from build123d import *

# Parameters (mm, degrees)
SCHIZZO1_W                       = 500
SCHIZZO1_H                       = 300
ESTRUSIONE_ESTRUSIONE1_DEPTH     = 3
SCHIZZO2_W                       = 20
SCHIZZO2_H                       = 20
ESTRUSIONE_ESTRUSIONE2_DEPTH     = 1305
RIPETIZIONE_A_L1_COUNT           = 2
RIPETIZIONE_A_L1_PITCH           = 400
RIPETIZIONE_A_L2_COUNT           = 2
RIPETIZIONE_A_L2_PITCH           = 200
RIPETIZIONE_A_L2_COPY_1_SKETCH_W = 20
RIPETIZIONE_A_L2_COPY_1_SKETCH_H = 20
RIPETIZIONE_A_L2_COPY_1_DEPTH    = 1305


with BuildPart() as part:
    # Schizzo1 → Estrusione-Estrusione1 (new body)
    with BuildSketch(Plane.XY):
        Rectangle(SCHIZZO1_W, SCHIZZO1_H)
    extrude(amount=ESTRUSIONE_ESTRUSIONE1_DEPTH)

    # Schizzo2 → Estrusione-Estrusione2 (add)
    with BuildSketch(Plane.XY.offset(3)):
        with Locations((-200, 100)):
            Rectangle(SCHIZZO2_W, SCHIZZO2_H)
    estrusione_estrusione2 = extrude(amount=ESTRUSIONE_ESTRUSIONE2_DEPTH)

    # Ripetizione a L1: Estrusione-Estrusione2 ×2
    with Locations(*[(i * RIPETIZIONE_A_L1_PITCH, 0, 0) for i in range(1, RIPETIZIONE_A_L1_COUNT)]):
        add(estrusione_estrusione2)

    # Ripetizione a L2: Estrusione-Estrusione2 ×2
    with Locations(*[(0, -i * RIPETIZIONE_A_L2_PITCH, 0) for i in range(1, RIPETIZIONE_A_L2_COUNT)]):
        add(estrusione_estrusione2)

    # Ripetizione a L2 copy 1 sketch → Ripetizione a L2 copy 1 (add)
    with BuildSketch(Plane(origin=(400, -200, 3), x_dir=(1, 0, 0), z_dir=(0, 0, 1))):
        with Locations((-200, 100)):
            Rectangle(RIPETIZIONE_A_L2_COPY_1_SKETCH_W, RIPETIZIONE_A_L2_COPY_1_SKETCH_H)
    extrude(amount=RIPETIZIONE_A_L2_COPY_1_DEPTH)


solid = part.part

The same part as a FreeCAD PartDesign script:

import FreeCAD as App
import Part
import Sketcher
from FreeCAD import Vector
Q = App.Units.Quantity

doc = App.newDocument("Part")
body = doc.addObject("PartDesign::Body", "Body")

sketch1 = body.newObject("Sketcher::SketchObject", "Sketch")
sketch1.AttachmentSupport = (doc.getObject("XY_Plane"), [""])
sketch1.MapMode = "FlatFace"
sketch1.addGeometry(Part.LineSegment(Vector(-250, 150, 0), Vector(-250, -150, 0)), False)
sketch1.addGeometry(Part.LineSegment(Vector(-250, -150, 0), Vector(250, -150, 0)), False)
sketch1.addGeometry(Part.LineSegment(Vector(250, -150, 0), Vector(250, 150, 0)), False)
sketch1.addGeometry(Part.LineSegment(Vector(250, 150, 0), Vector(-250, 150, 0)), False)
sketch1.addConstraint(Sketcher.Constraint("Coincident", 0, 2, 1, 1))
sketch1.addConstraint(Sketcher.Constraint("Coincident", 1, 2, 2, 1))
sketch1.addConstraint(Sketcher.Constraint("Coincident", 2, 2, 3, 1))
sketch1.addConstraint(Sketcher.Constraint("Coincident", 3, 2, 0, 1))
sketch1.addConstraint(Sketcher.Constraint("Vertical", 0))
sketch1.addConstraint(Sketcher.Constraint("Horizontal", 1))
sketch1.addConstraint(Sketcher.Constraint("Vertical", 2))
sketch1.addConstraint(Sketcher.Constraint("Horizontal", 3))
sketch1.addConstraint(Sketcher.Constraint("Symmetric", 0, 2, 2, 2, -1, 1))
sketch1.addConstraint(Sketcher.Constraint("DistanceX", 1, 1, 1, 2, Q("500 mm")))
sketch1.addConstraint(Sketcher.Constraint("DistanceY", 0, 2, 0, 1, Q("300 mm")))
pad1 = body.newObject("PartDesign::Pad", "Pad")
pad1.Profile = sketch1
pad1.Length = 3

sketch2 = body.newObject("Sketcher::SketchObject", "Sketch001")
sketch2.AttachmentSupport = (doc.getObject("XY_Plane"), [""])
sketch2.MapMode = "FlatFace"
sketch2.AttachmentOffset = App.Placement(Vector(0, 0, 3), App.Rotation())
sketch2.addGeometry(Part.LineSegment(Vector(-210, 110, 0), Vector(-210, 90, 0)), False)
sketch2.addGeometry(Part.LineSegment(Vector(-210, 90, 0), Vector(-190, 90, 0)), False)
sketch2.addGeometry(Part.LineSegment(Vector(-190, 90, 0), Vector(-190, 110, 0)), False)
sketch2.addGeometry(Part.LineSegment(Vector(-190, 110, 0), Vector(-210, 110, 0)), False)
sketch2.addConstraint(Sketcher.Constraint("Coincident", 0, 2, 1, 1))
sketch2.addConstraint(Sketcher.Constraint("Coincident", 1, 2, 2, 1))
sketch2.addConstraint(Sketcher.Constraint("Coincident", 2, 2, 3, 1))
sketch2.addConstraint(Sketcher.Constraint("Coincident", 3, 2, 0, 1))
sketch2.addConstraint(Sketcher.Constraint("Vertical", 0))
sketch2.addConstraint(Sketcher.Constraint("Horizontal", 1))
sketch2.addConstraint(Sketcher.Constraint("Vertical", 2))
sketch2.addConstraint(Sketcher.Constraint("Horizontal", 3))
sketch2.addConstraint(Sketcher.Constraint("Equal", 3, 0))
sketch2.addConstraint(Sketcher.Constraint("DistanceX", 1, 1, 1, 2, Q("20 mm")))
sketch2.addConstraint(Sketcher.Constraint("DistanceX", 0, 2, -1, 1, Q("210 mm")))
sketch2.addConstraint(Sketcher.Constraint("DistanceY", -1, 1, 0, 2, Q("90 mm")))
pad2 = body.newObject("PartDesign::Pad", "Pad001")
pad2.Profile = sketch2
pad2.Length = 1305
doc.recompute()

linearpattern = body.newObject("PartDesign::LinearPattern", "LinearPattern")
linearpattern.Originals = [pad2]
linearpattern.Direction = (doc.getObject("X_Axis"), [""])
linearpattern.Mode = "offset"
linearpattern.Offset = 400
linearpattern.Occurrences = 2
body.Tip = linearpattern
doc.recompute()

linearpattern2 = body.newObject("PartDesign::LinearPattern", "LinearPattern001")
linearpattern2.Originals = [pad2]
linearpattern2.Direction = (doc.getObject("Y_Axis"), [""])
linearpattern2.Mode = "offset"
linearpattern2.Offset = 200
linearpattern2.Occurrences = 2
linearpattern2.Reversed = True
body.Tip = linearpattern2

sketch3 = body.newObject("Sketcher::SketchObject", "Sketch002")
sketch3.AttachmentSupport = (doc.getObject("XY_Plane"), [""])
sketch3.MapMode = "FlatFace"
sketch3.AttachmentOffset = App.Placement(Vector(0, 0, 3), App.Rotation())
sketch3.addGeometry(Part.LineSegment(Vector(190, -90, 0), Vector(190, -110, 0)), False)
sketch3.addGeometry(Part.LineSegment(Vector(190, -110, 0), Vector(210, -110, 0)), False)
sketch3.addGeometry(Part.LineSegment(Vector(210, -110, 0), Vector(210, -90, 0)), False)
sketch3.addGeometry(Part.LineSegment(Vector(210, -90, 0), Vector(190, -90, 0)), False)
sketch3.addConstraint(Sketcher.Constraint("Coincident", 0, 2, 1, 1))
sketch3.addConstraint(Sketcher.Constraint("Coincident", 1, 2, 2, 1))
sketch3.addConstraint(Sketcher.Constraint("Coincident", 2, 2, 3, 1))
sketch3.addConstraint(Sketcher.Constraint("Coincident", 3, 2, 0, 1))
sketch3.addConstraint(Sketcher.Constraint("Vertical", 0))
sketch3.addConstraint(Sketcher.Constraint("Horizontal", 1))
sketch3.addConstraint(Sketcher.Constraint("Vertical", 2))
sketch3.addConstraint(Sketcher.Constraint("Horizontal", 3))
sketch3.addConstraint(Sketcher.Constraint("Equal", 3, 0))
sketch3.addConstraint(Sketcher.Constraint("DistanceX", 1, 1, 1, 2, Q("20 mm")))
sketch3.addConstraint(Sketcher.Constraint("DistanceX", -1, 1, 0, 2, Q("190 mm")))
sketch3.addConstraint(Sketcher.Constraint("DistanceY", 0, 2, -1, 1, Q("110 mm")))
pad3 = body.newObject("PartDesign::Pad", "Pad002")
pad3.Profile = sketch3
pad3.Length = 1305

doc.recompute()
